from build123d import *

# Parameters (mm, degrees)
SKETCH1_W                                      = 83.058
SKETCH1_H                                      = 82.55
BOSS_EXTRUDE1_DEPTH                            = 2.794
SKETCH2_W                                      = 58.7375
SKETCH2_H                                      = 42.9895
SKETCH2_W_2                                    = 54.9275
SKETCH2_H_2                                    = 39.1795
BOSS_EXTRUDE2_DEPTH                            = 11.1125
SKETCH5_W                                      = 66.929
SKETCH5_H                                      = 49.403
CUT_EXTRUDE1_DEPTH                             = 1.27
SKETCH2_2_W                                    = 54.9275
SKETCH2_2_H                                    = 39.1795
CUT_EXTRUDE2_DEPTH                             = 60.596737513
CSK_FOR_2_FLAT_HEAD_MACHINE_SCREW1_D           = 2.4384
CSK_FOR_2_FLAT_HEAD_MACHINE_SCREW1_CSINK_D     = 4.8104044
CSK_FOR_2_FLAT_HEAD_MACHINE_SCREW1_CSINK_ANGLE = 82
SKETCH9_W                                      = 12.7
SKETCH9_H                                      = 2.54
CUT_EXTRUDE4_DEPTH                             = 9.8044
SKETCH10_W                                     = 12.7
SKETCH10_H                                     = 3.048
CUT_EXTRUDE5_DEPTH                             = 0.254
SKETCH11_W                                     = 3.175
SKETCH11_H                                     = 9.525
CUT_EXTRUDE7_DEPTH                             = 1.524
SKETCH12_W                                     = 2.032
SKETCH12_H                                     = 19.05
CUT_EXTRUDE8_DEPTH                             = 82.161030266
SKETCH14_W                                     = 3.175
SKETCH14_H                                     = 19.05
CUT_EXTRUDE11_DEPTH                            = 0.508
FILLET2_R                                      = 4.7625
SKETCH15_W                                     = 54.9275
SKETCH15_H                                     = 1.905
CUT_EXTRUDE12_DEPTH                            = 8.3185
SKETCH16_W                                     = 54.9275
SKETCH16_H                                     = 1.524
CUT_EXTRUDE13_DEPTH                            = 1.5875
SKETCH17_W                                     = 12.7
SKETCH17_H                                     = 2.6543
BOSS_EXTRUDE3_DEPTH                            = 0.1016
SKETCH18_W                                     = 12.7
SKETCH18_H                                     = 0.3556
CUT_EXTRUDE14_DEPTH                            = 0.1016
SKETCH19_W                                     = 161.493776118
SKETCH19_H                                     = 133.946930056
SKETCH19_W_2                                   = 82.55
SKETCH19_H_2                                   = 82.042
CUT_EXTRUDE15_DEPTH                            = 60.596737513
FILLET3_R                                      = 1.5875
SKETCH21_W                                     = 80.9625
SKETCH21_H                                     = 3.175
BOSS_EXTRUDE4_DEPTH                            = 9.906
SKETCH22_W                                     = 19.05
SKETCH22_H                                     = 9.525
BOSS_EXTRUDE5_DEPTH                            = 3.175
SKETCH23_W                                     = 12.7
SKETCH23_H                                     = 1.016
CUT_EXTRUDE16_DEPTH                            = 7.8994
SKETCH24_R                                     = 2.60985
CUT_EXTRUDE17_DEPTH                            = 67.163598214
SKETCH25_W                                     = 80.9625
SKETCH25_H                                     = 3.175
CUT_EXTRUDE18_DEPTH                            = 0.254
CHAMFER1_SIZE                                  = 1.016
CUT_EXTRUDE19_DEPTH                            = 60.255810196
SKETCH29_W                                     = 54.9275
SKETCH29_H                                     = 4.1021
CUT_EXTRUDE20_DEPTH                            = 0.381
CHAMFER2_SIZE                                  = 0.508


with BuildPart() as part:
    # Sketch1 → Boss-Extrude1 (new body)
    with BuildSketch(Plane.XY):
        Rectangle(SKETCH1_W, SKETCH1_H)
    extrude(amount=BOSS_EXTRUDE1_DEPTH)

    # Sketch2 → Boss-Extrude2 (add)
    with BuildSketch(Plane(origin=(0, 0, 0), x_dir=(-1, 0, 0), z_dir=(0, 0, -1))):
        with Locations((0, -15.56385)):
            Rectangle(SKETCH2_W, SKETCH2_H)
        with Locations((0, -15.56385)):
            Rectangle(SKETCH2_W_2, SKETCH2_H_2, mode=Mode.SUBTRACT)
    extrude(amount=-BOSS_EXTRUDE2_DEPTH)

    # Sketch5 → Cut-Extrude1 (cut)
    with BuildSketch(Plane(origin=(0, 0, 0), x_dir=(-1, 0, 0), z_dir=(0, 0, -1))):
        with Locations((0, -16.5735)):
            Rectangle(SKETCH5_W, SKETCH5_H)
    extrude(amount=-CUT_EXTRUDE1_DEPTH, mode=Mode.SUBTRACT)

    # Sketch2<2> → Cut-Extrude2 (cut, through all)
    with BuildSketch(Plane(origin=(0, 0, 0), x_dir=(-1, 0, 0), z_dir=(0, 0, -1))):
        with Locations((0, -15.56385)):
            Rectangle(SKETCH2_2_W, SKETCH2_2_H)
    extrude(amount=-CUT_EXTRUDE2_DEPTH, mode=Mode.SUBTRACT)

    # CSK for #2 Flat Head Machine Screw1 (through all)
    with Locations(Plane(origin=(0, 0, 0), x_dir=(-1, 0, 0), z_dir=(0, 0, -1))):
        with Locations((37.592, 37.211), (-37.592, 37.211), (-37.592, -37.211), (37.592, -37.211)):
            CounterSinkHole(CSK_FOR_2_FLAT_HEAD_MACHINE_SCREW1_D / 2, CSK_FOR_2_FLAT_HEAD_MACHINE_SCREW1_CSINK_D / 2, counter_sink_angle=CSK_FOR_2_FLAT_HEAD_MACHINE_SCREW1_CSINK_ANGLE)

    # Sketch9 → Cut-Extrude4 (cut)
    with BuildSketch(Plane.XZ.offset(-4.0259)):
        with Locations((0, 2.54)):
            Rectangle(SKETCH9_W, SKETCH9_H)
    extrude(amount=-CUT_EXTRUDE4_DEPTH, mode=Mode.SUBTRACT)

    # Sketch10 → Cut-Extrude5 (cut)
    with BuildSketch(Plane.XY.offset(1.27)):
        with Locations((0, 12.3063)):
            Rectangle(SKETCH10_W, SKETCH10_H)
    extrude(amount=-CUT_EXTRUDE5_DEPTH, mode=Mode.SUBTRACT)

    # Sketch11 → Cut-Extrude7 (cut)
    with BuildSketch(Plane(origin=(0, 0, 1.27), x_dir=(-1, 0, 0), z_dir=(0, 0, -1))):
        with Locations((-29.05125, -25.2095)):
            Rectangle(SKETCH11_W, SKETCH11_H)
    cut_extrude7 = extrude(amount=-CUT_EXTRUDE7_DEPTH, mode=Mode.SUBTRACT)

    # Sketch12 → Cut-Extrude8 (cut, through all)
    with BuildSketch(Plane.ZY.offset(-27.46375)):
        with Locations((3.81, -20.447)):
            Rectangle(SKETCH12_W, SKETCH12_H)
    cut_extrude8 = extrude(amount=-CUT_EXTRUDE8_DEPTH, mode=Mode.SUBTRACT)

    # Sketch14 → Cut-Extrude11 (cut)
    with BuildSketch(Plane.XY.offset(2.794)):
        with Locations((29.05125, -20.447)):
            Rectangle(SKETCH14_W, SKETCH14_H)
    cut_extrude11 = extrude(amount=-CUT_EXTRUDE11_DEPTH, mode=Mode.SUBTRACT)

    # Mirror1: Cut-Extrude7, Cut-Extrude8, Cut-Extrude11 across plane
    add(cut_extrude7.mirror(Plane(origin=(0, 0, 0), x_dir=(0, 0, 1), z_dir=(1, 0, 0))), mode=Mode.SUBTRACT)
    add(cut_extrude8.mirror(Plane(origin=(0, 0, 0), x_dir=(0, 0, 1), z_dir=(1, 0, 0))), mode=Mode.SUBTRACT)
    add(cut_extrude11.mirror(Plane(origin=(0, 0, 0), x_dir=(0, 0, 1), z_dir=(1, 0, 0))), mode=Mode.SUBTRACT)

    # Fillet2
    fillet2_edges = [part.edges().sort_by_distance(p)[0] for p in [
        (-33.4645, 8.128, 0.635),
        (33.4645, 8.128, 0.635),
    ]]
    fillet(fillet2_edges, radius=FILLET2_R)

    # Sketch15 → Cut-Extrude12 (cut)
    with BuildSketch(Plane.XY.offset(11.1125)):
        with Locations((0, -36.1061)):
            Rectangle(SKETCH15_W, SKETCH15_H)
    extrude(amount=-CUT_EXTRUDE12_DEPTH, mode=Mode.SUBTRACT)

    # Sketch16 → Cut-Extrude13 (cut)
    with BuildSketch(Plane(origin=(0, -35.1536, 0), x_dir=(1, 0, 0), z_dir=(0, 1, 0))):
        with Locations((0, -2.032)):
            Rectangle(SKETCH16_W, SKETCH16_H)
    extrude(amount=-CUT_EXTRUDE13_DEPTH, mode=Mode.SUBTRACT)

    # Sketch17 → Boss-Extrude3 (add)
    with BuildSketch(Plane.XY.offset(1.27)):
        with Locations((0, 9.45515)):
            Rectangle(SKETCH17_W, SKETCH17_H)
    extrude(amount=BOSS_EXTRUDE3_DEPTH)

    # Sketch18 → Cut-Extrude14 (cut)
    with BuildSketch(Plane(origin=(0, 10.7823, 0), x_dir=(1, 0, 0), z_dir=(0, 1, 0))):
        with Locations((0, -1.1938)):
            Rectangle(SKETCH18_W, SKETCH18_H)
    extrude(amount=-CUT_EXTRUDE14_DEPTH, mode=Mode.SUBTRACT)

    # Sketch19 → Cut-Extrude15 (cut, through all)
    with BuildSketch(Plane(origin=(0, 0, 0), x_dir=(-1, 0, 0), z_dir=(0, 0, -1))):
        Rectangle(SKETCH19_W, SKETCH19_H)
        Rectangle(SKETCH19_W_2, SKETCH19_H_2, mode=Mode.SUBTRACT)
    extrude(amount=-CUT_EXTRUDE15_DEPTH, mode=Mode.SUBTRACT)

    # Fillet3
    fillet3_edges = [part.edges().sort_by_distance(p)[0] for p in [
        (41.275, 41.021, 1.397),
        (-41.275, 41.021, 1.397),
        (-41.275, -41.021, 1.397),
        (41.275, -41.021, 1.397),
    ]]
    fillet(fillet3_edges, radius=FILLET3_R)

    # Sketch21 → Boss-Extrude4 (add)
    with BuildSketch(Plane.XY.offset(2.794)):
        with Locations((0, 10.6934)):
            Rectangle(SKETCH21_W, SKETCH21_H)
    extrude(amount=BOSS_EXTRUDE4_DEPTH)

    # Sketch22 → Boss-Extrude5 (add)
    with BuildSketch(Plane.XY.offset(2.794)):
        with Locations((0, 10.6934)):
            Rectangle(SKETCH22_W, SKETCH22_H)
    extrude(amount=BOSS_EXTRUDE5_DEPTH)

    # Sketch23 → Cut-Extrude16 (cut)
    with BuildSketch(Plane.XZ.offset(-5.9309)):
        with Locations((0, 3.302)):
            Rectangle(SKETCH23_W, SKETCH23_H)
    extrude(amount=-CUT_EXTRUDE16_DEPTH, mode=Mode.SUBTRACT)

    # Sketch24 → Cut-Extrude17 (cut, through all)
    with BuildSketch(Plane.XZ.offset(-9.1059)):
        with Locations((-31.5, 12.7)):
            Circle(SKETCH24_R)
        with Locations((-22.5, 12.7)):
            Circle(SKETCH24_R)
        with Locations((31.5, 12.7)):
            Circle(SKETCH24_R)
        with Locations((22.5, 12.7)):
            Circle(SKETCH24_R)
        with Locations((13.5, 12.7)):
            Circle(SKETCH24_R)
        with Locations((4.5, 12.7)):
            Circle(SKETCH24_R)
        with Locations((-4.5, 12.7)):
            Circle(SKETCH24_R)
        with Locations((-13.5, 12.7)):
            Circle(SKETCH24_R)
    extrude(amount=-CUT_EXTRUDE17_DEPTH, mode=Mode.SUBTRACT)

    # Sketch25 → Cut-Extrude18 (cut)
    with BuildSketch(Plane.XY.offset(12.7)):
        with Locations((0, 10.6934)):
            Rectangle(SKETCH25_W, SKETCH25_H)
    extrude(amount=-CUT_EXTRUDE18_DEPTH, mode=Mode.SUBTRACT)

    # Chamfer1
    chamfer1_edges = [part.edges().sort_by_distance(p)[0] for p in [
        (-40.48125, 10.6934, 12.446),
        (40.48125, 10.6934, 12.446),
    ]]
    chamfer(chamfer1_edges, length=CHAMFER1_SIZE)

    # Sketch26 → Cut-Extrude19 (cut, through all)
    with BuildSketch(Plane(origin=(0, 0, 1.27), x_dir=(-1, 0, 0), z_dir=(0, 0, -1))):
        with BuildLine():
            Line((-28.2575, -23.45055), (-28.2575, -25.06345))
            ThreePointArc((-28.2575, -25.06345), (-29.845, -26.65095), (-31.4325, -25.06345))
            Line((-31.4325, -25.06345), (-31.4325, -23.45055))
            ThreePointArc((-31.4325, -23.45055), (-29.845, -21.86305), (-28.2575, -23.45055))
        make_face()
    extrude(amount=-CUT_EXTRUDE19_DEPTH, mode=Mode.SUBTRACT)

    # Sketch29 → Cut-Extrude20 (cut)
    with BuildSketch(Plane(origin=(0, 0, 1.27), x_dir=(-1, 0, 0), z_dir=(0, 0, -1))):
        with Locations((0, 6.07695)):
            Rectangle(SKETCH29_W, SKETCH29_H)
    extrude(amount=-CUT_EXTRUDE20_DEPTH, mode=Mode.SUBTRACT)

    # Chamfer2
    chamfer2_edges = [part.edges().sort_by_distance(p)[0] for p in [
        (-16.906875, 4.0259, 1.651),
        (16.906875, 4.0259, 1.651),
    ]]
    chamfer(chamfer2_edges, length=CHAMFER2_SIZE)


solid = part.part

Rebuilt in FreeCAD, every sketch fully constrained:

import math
import FreeCAD as App
import Part
import Sketcher
Q = App.Units.Quantity


def edges_at(feature, points):
    """Names of the edges that pass closest to the given points."""
    edges = feature.Shape.Edges
    near = lambda p: min(range(len(edges)), key=lambda i: edges[i].distToShape(Part.Vertex(*p))[0])
    return sorted({f"Edge{near(p) + 1}" for p in points})

doc = App.newDocument("Part")
body = doc.addObject("PartDesign::Body", "Body")

# Sketch on XY plane
sketch1 = body.newObject("Sketcher::SketchObject", "Sketch")
sketch1.AttachmentSupport = (doc.getObject("XY_Plane"), [""])
sketch1.MapMode = "FlatFace"
sketch1.addGeometry([
    Part.LineSegment(App.Vector(-42, 41, 0), App.Vector(-42, -41, 0)),
    Part.LineSegment(App.Vector(-42, -41, 0), App.Vector(42, -41, 0)),
    Part.LineSegment(App.Vector(42, -41, 0), App.Vector(42, 41, 0)),
    Part.LineSegment(App.Vector(42, 41, 0), App.Vector(-42, 41, 0)),
], False)
sketch1.addConstraint([
    Sketcher.Constraint("Coincident", 0, 2, 1, 1),
    Sketcher.Constraint("Coincident", 1, 2, 2, 1),
    Sketcher.Constraint("Coincident", 2, 2, 3, 1),
    Sketcher.Constraint("Coincident", 3, 2, 0, 1),
    Sketcher.Constraint("Vertical", 0),
    Sketcher.Constraint("Horizontal", 1),
    Sketcher.Constraint("Vertical", 2),
    Sketcher.Constraint("Horizontal", 3),
    Sketcher.Constraint("Symmetric", 0, 2, 2, 2, -1, 1),
    Sketcher.Constraint("DistanceX", 1, 1, 1, 2, Q("3.27 in")),
    Sketcher.Constraint("DistanceY", 0, 2, 0, 1, Q("3.25 in")),
])
pad1 = body.newObject("PartDesign::Pad", "Pad")
pad1.Profile = sketch1
pad1.Length = Q("0.11 in")

# Sketch on XY plane
sketch2 = body.newObject("Sketcher::SketchObject", "Sketch001")
sketch2.AttachmentSupport = (doc.getObject("XY_Plane"), [""])
sketch2.MapMode = "FlatFace"
sketch2.addGeometry([
    Part.LineSegment(App.Vector(29, 6, 0), App.Vector(29, -37, 0)),  # 0
    Part.LineSegment(App.Vector(29, -37, 0), App.Vector(-29, -37, 0)),  # 1
    Part.LineSegment(App.Vector(-29, -37, 0), App.Vector(-29, 6, 0)),  # 2
    Part.LineSegment(App.Vector(-29, 6, 0), App.Vector(29, 6, 0)),  # 3
    Part.LineSegment(App.Vector(-27, -35, 0), App.Vector(27, -35, 0)),  # 4
    Part.LineSegment(App.Vector(27, -35, 0), App.Vector(27, 4, 0)),  # 5
    Part.LineSegment(App.Vector(27, 4, 0), App.Vector(-27, 4, 0)),  # 6
    Part.LineSegment(App.Vector(-27, 4, 0), App.Vector(-27, -35, 0)),  # 7
], False)
sketch2.addConstraint([
    Sketcher.Constraint("Coincident", 0, 2, 1, 1),
    Sketcher.Constraint("Coincident", 1, 2, 2, 1),
    Sketcher.Constraint("Coincident", 2, 2, 3, 1),
    Sketcher.Constraint("Coincident", 3, 2, 0, 1),
    Sketcher.Constraint("Coincident", 4, 2, 5, 1),
    Sketcher.Constraint("Coincident", 5, 2, 6, 1),
    Sketcher.Constraint("Coincident", 6, 2, 7, 1),
    Sketcher.Constraint("Coincident", 7, 2, 4, 1),
    Sketcher.Constraint("Vertical", 0),
    Sketcher.Constraint("Horizontal", 1),
    Sketcher.Constraint("Vertical", 2),
    Sketcher.Constraint("Horizontal", 3),
    Sketcher.Constraint("Horizontal", 4),
    Sketcher.Constraint("Vertical", 5),
    Sketcher.Constraint("Horizontal", 6),
    Sketcher.Constraint("Vertical", 7),
    Sketcher.Constraint("DistanceX", 1, 2, 1, 1, Q("2.3125 in")),
    Sketcher.Constraint("DistanceX", 4, 1, 4, 2, Q("2.1625 in")),
    Sketcher.Constraint("DistanceY", 0, 2, 0, 1, Q("1.6925 in")),
    Sketcher.Constraint("DistanceY", 5, 1, 5, 2, Q("1.5425 in")),
    Sketcher.Constraint("DistanceX", -1, 1, 0, 2, Q("1.15625 in")),
    Sketcher.Constraint("DistanceY", 0, 2, -1, 1, Q("1.459 in")),
    Sketcher.Constraint("DistanceY", 4, 2, -1, 1, Q("1.384 in")),
    Sketcher.Constraint("DistanceX", 4, 2, 0, 2, Q("0.075 in")),
])
pad2 = body.newObject("PartDesign::Pad", "Pad001")
pad2.Profile = sketch2
pad2.Length = Q("0.4375 in")

# Sketch on XY plane
sketch3 = body.newObject("Sketcher::SketchObject", "Sketch002")
sketch3.AttachmentSupport = (doc.getObject("XY_Plane"), [""])
sketch3.MapMode = "FlatFace"
sketch3.addGeometry([
    Part.LineSegment(App.Vector(33, 8, 0), App.Vector(33, -41, 0)),
    Part.LineSegment(App.Vector(33, -41, 0), App.Vector(-33, -41, 0)),
    Part.LineSegment(App.Vector(-33, -41, 0), App.Vector(-33, 8, 0)),
    Part.LineSegment(App.Vector(-33, 8, 0), App.Vector(33, 8, 0)),
], False)
sketch3.addConstraint([
    Sketcher.Constraint("Coincident", 0, 2, 1, 1),
    Sketcher.Constraint("Coincident", 1, 2, 2, 1),
    Sketcher.Constraint("Coincident", 2, 2, 3, 1),
    Sketcher.Constraint("Coincident", 3, 2, 0, 1),
    Sketcher.Constraint("Vertical", 0),
    Sketcher.Constraint("Horizontal", 1),
    Sketcher.Constraint("Vertical", 2),
    Sketcher.Constraint("Horizontal", 3),
    Sketcher.Constraint("DistanceX", 1, 2, 1, 1, Q("2.635 in")),
    Sketcher.Constraint("DistanceY", 0, 2, 0, 1, Q("1.945 in")),
    Sketcher.Constraint("DistanceY", -1, 1, 2, 2, Q("0.32 in")),
    Sketcher.Constraint("DistanceX", -1, 1, 0, 2, Q("1.3175 in")),
])
pocket1 = body.newObject("PartDesign::Pocket", "Pocket")
pocket1.Profile = sketch3
pocket1.Length = Q("0.05 in")
pocket1.Reversed = True

# Sketch on XY plane
sketch4 = body.newObject("Sketcher::SketchObject", "Sketch003")
sketch4.AttachmentSupport = (doc.getObject("XY_Plane"), [""])
sketch4.MapMode = "FlatFace"
sketch4.addGeometry([
    Part.LineSegment(App.Vector(27, 4, 0), App.Vector(27, -35, 0)),
    Part.LineSegment(App.Vector(27, -35, 0), App.Vector(-27, -35, 0)),
    Part.LineSegment(App.Vector(-27, -35, 0), App.Vector(-27, 4, 0)),
    Part.LineSegment(App.Vector(-27, 4, 0), App.Vector(27, 4, 0)),
], False)
sketch4.addConstraint([
    Sketcher.Constraint("Coincident", 0, 2, 1, 1),
    Sketcher.Constraint("Coincident", 1, 2, 2, 1),
    Sketcher.Constraint("Coincident", 2, 2, 3, 1),
    Sketcher.Constraint("Coincident", 3, 2, 0, 1),
    Sketcher.Constraint("Vertical", 0),
    Sketcher.Constraint("Horizontal", 1),
    Sketcher.Constraint("Vertical", 2),
    Sketcher.Constraint("Horizontal", 3),
    Sketcher.Constraint("DistanceX", 1, 2, 1, 1, Q("2.1625 in")),
    Sketcher.Constraint("DistanceY", 0, 2, 0, 1, Q("1.5425 in")),
    Sketcher.Constraint("DistanceY", 0, 2, -1, 1, Q("1.384 in")),
    Sketcher.Constraint("DistanceX", -1, 1, 0, 2, 27.46375),
])
pocket2 = body.newObject("PartDesign::Pocket", "Pocket001")
pocket2.Profile = sketch4
pocket2.Type = "ThroughAll"
pocket2.Reversed = True

# Sketch on XY plane
sketch5 = body.newObject("Sketcher::SketchObject", "Sketch004")
sketch5.AttachmentSupport = (doc.getObject("XY_Plane"), [""])
sketch5.MapMode = "FlatFace"
sketch5.addGeometry([
    Part.Circle(App.Vector(-37.6, 37.2, 0), App.Vector(0, 0, 1), 1.2),
    Part.Circle(App.Vector(37.6, 37.2, 0), App.Vector(0, 0, 1), 1.2),
    Part.Circle(App.Vector(37.6, -37.2, 0), App.Vector(0, 0, 1), 1.2),
    Part.Circle(App.Vector(-37.6, -37.2, 0), App.Vector(0, 0, 1), 1.2),
], False)
sketch5.addConstraint([
    Sketcher.Constraint("Equal", 0, 1),
    Sketcher.Constraint("Equal", 1, 2),
    Sketcher.Constraint("Equal", 2, 3),
    Sketcher.Constraint("Symmetric", 0, 3, 2, 3, -1, 1),
    Sketcher.Constraint("Symmetric", 1, 3, 3, 3, -1, 1),
    Sketcher.Constraint("Symmetric", 0, 3, 1, 3, -2),
    Sketcher.Constraint("Diameter", 0, Q("0.096 in")),
    Sketcher.Constraint("DistanceX", 0, 3, -1, 1, Q("1.48 in")),
    Sketcher.Constraint("DistanceY", 2, 3, 1, 3, Q("2.93 in")),
])
doc.recompute()
hole = body.newObject("PartDesign::Hole", "Hole")
hole.Profile = sketch5
hole.ThreadType = "None"
hole.Diameter = Q("0.096 in")
hole.DepthType = "ThroughAll"
hole.HoleCutType = "Countersink"
hole.HoleCutDiameter = 4.810404
hole.HoleCutCountersinkAngle = 82
hole.Reversed = True

# Sketch on XZ plane
sketch6 = body.newObject("Sketcher::SketchObject", "Sketch005")
sketch6.AttachmentSupport = (doc.getObject("XZ_Plane"), [""])
sketch6.MapMode = "FlatFace"
sketch6.AttachmentOffset = App.Placement(App.Vector(0, 0, -0.1585 * 25.4), App.Rotation())
sketch6.addGeometry([
    Part.LineSegment(App.Vector(-6.3, 3.8, 0), App.Vector(-6.3, 1.3, 0)),
    Part.LineSegment(App.Vector(-6.3, 1.3, 0), App.Vector(6.3, 1.3, 0)),
    Part.LineSegment(App.Vector(6.3, 1.3, 0), App.Vector(6.3, 3.8, 0)),
    Part.LineSegment(App.Vector(6.3, 3.8, 0), App.Vector(-6.3, 3.8, 0)),
], False)
sketch6.addConstraint([
    Sketcher.Constraint("Coincident", 0, 2, 1, 1),
    Sketcher.Constraint("Coincident", 1, 2, 2, 1),
    Sketcher.Constraint("Coincident", 2, 2, 3, 1),
    Sketcher.Constraint("Coincident", 3, 2, 0, 1),
    Sketcher.Constraint("Vertical", 0),
    Sketcher.Constraint("Horizontal", 1),
    Sketcher.Constraint("Vertical", 2),
    Sketcher.Constraint("Horizontal", 3),
    Sketcher.Constraint("DistanceX", 1, 1, 1, 2, Q("0.5 in")),
    Sketcher.Constraint("DistanceY", 0, 2, 0, 1, Q("0.1 in")),
    Sketcher.Constraint("DistanceX", 0, 2, -1, 1, Q("0.25 in")),
    Sketcher.Constraint("DistanceY", -1, 1, 0, 2, Q("0.05 in")),
])
pocket3 = body.newObject("PartDesign::Pocket", "Pocket002")
pocket3.Profile = sketch6
pocket3.Length = Q("0.386 in")

# Sketch on XY plane
sketch7 = body.newObject("Sketcher::SketchObject", "Sketch006")
sketch7.AttachmentSupport = (doc.getObject("XY_Plane"), [""])
sketch7.MapMode = "FlatFace"
sketch7.AttachmentOffset = App.Placement(App.Vector(0, 0, 0.05 * 25.4), App.Rotation())
sketch7.addGeometry([
    Part.LineSegment(App.Vector(-6.3, 13.8, 0), App.Vector(-6.3, 10.8, 0)),
    Part.LineSegment(App.Vector(-6.3, 10.8, 0), App.Vector(6.3, 10.8, 0)),
    Part.LineSegment(App.Vector(6.3, 10.8, 0), App.Vector(6.3, 13.8, 0)),
    Part.LineSegment(App.Vector(6.3, 13.8, 0), App.Vector(-6.3, 13.8, 0)),
], False)
sketch7.addConstraint([
    Sketcher.Constraint("Coincident", 0, 2, 1, 1),
    Sketcher.Constraint("Coincident", 1, 2, 2, 1),
    Sketcher.Constraint("Coincident", 2, 2, 3, 1),
    Sketcher.Constraint("Coincident", 3, 2, 0, 1),
    Sketcher.Constraint("Vertical", 0),
    Sketcher.Constraint("Horizontal", 1),
    Sketcher.Constraint("Vertical", 2),
    Sketcher.Constraint("Horizontal", 3),
    Sketcher.Constraint("DistanceX", 1, 1, 1, 2, Q("0.5 in")),
    Sketcher.Constraint("DistanceY", 0, 2, 0, 1, Q("0.12 in")),
    Sketcher.Constraint("DistanceX", 0, 2, -1, 1, Q("0.25 in")),
    Sketcher.Constraint("DistanceY", -1, 1, 0, 2, Q("0.4245 in")),
])
pocket4 = body.newObject("PartDesign::Pocket", "Pocket003")
pocket4.Profile = sketch7
pocket4.Length = Q("0.01 in")

# Sketch on XY plane
sketch8 = body.newObject("Sketcher::SketchObject", "Sketch007")
sketch8.AttachmentSupport = (doc.getObject("XY_Plane"), [""])
sketch8.MapMode = "FlatFace"
sketch8.AttachmentOffset = App.Placement(App.Vector(0, 0, 0.05 * 25.4), App.Rotation())
sketch8.addGeometry([
    Part.LineSegment(App.Vector(30.6, -20.4, 0), App.Vector(30.6, -30, 0)),
    Part.LineSegment(App.Vector(30.6, -30, 0), App.Vector(27.5, -30, 0)),
    Part.LineSegment(App.Vector(27.5, -30, 0), App.Vector(27.5, -20.4, 0)),
    Part.LineSegment(App.Vector(27.5, -20.4, 0), App.Vector(30.6, -20.4, 0)),
], False)
sketch8.addConstraint([
    Sketcher.Constraint("Coincident", 0, 2, 1, 1),
    Sketcher.Constraint("Coincident", 1, 2, 2, 1),
    Sketcher.Constraint("Coincident", 2, 2, 3, 1),
    Sketcher.Constraint("Coincident", 3, 2, 0, 1),
    Sketcher.Constraint("Vertical", 0),
    Sketcher.Constraint("Horizontal", 1),
    Sketcher.Constraint("Vertical", 2),
    Sketcher.Constraint("Horizontal", 3),
    Sketcher.Constraint("DistanceX", 1, 2, 1, 1, Q("0.125 in")),
    Sketcher.Constraint("DistanceY", 0, 2, 0, 1, Q("0.375 in")),
    Sketcher.Constraint("DistanceY", 0, 2, -1, 1, Q("1.18 in")),
    Sketcher.Constraint("DistanceX", -1, 1, 0, 2, 30.63875),
])
pocket5 = body.newObject("PartDesign::Pocket", "Pocket004")
pocket5.Profile = sketch8
pocket5.Length = Q("0.06 in")
pocket5.Reversed = True

# Sketch on YZ plane
sketch9 = body.newObject("Sketcher::SketchObject", "Sketch008")
sketch9.AttachmentSupport = (doc.getObject("YZ_Plane"), [""])
sketch9.MapMode = "FlatFace"
sketch9.AttachmentOffset = App.Placement(App.Vector(0, 0, 27.46375), App.Rotation())
sketch9.addGeometry([
    Part.LineSegment(App.Vector(-10.9, 2.8, 0), App.Vector(-30, 2.8, 0)),
    Part.LineSegment(App.Vector(-30, 2.8, 0), App.Vector(-30, 4.8, 0)),
    Part.LineSegment(App.Vector(-30, 4.8, 0), App.Vector(-10.9, 4.8, 0)),
    Part.LineSegment(App.Vector(-10.9, 4.8, 0), App.Vector(-10.9, 2.8, 0)),
], False)
sketch9.addConstraint([
    Sketcher.Constraint("Coincident", 0, 2, 1, 1),
    Sketcher.Constraint("Coincident", 1, 2, 2, 1),
    Sketcher.Constraint("Coincident", 2, 2, 3, 1),
    Sketcher.Constraint("Coincident", 3, 2, 0, 1),
    Sketcher.Constraint("Horizontal", 0),
    Sketcher.Constraint("Vertical", 1),
    Sketcher.Constraint("Horizontal", 2),
    Sketcher.Constraint("Vertical", 3),
    Sketcher.Constraint("DistanceX", 0, 2, 0, 1, Q("0.75 in")),
    Sketcher.Constraint("DistanceY", 1, 1, 1, 2, Q("0.08 in")),
    Sketcher.Constraint("DistanceX", 0, 2, -1, 1, Q("1.18 in")),
    Sketcher.Constraint("DistanceY", -1, 1, 0, 2, Q("0.11 in")),
])
pocket6 = body.newObject("PartDesign::Pocket", "Pocket005")
pocket6.Profile = sketch9
pocket6.Type = "ThroughAll"
pocket6.Reversed = True

# Sketch on XY plane
sketch10 = body.newObject("Sketcher::SketchObject", "Sketch009")
sketch10.AttachmentSupport = (doc.getObject("XY_Plane"), [""])
sketch10.MapMode = "FlatFace"
sketch10.AttachmentOffset = App.Placement(App.Vector(0, 0, 0.11 * 25.4), App.Rotation())
sketch10.addGeometry([
    Part.LineSegment(App.Vector(27.5, -10.9, 0), App.Vector(27.5, -30, 0)),
    Part.LineSegment(App.Vector(27.5, -30, 0), App.Vector(30.6, -30, 0)),
    Part.LineSegment(App.Vector(30.6, -30, 0), App.Vector(30.6, -10.9, 0)),
    Part.LineSegment(App.Vector(30.6, -10.9, 0), App.Vector(27.5, -10.9, 0)),
], False)
sketch10.addConstraint([
    Sketcher.Constraint("Coincident", 0, 2, 1, 1),
    Sketcher.Constraint("Coincident", 1, 2, 2, 1),
    Sketcher.Constraint("Coincident", 2, 2, 3, 1),
    Sketcher.Constraint("Coincident", 3, 2, 0, 1),
    Sketcher.Constraint("Vertical", 0),
    Sketcher.Constraint("Horizontal", 1),
    Sketcher.Constraint("Vertical", 2),
    Sketcher.Constraint("Horizontal", 3),
    Sketcher.Constraint("DistanceY", 0, 2, 0, 1, Q("0.75 in")),
    Sketcher.Constraint("DistanceX", 1, 1, 1, 2, Q("0.125 in")),
    Sketcher.Constraint("DistanceY", 0, 2, -1, 1, Q("1.18 in")),
    Sketcher.Constraint("DistanceX", -1, 1, 0, 2, 27.46375),
])
pocket7 = body.newObject("PartDesign::Pocket", "Pocket006")
pocket7.Profile = sketch10
pocket7.Length = Q("0.02 in")
doc.recompute()

mirrored = body.newObject("PartDesign::Mirrored", "Mirrored")
mirrored.Originals = [pocket5, pocket6, pocket7]
mirrored.MirrorPlane = (doc.getObject("YZ_Plane"), [""])
body.Tip = mirrored
doc.recompute()

fillet = body.newObject("PartDesign::Fillet", "Fillet")
fillet.Base = (mirrored, edges_at(mirrored, [(-33.465, 8.128, 0.635), (33.465, 8.128, 0.635)]))
fillet.Radius = Q("0.1875 in")

# Sketch on XY plane
sketch11 = body.newObject("Sketcher::SketchObject", "Sketch010")
sketch11.AttachmentSupport = (doc.getObject("XY_Plane"), [""])
sketch11.MapMode = "FlatFace"
sketch11.AttachmentOffset = App.Placement(App.Vector(0, 0, 0.4375 * 25.4), App.Rotation())
sketch11.addGeometry([
    Part.LineSegment(App.Vector(-27.5, -35.2, 0), App.Vector(-27.5, -37.1, 0)),
    Part.LineSegment(App.Vector(-27.5, -37.1, 0), App.Vector(27.5, -37.1, 0)),
    Part.LineSegment(App.Vector(27.5, -37.1, 0), App.Vector(27.5, -35.2, 0)),
    Part.LineSegment(App.Vector(27.5, -35.2, 0), App.Vector(-27.5, -35.2, 0)),
], False)
sketch11.addConstraint([
    Sketcher.Constraint("Coincident", 0, 2, 1, 1),
    Sketcher.Constraint("Coincident", 1, 2, 2, 1),
    Sketcher.Constraint("Coincident", 2, 2, 3, 1),
    Sketcher.Constraint("Coincident", 3, 2, 0, 1),
    Sketcher.Constraint("Vertical", 0),
    Sketcher.Constraint("Horizontal", 1),
    Sketcher.Constraint("Vertical", 2),
    Sketcher.Constraint("Horizontal", 3),
    Sketcher.Constraint("DistanceY", 0, 2, 0, 1, Q("0.075 in")),
    Sketcher.Constraint("DistanceX", 1, 1, 1, 2, Q("2.1625 in")),
    Sketcher.Constraint("DistanceY", 0, 2, -1, 1, Q("1.459 in")),
    Sketcher.Constraint("DistanceX", 0, 2, -1, 1, 27.46375),
])
pocket8 = body.newObject("PartDesign::Pocket", "Pocket007")
pocket8.Profile = sketch11
pocket8.Length = Q("0.3275 in")

# Sketch on XZ plane
sketch12 = body.newObject("Sketcher::SketchObject", "Sketch011")
sketch12.AttachmentSupport = (doc.getObject("XZ_Plane"), [""])
sketch12.MapMode = "FlatFace"
sketch12.AttachmentOffset = App.Placement(App.Vector(0, 0, 1.384 * 25.4), App.Rotation())
sketch12.addGeometry([
    Part.LineSegment(App.Vector(-27.5, 1.3, 0), App.Vector(-27.5, 2.8, 0)),
    Part.LineSegment(App.Vector(-27.5, 2.8, 0), App.Vector(27.5, 2.8, 0)),
    Part.LineSegment(App.Vector(27.5, 2.8, 0), App.Vector(27.5, 1.3, 0)),
    Part.LineSegment(App.Vector(27.5, 1.3, 0), App.Vector(-27.5, 1.3, 0)),
], False)
sketch12.addConstraint([
    Sketcher.Constraint("Coincident", 0, 2, 1, 1),
    Sketcher.Constraint("Coincident", 1, 2, 2, 1),
    Sketcher.Constraint("Coincident", 2, 2, 3, 1),
    Sketcher.Constraint("Coincident", 3, 2, 0, 1),
    Sketcher.Constraint("Vertical", 0),
    Sketcher.Constraint("Horizontal", 1),
    Sketcher.Constraint("Vertical", 2),
    Sketcher.Constraint("Horizontal", 3),
    Sketcher.Constraint("DistanceY", 0, 1, 0, 2, Q("0.06 in")),
    Sketcher.Constraint("DistanceY", -1, 1, 0, 2, Q("0.11 in")),
    Sketcher.Constraint("DistanceX", 1, 1, 1, 2, Q("2.1625 in")),
    Sketcher.Constraint("DistanceX", 0, 2, -1, 1, 27.46375),
])
pocket9 = body.newObject("PartDesign::Pocket", "Pocket008")
pocket9.Profile = sketch12
pocket9.Length = Q("0.0625 in")
pocket9.Reversed = True

# Sketch on XY plane
sketch13 = body.newObject("Sketcher::SketchObject", "Sketch012")
sketch13.AttachmentSupport = (doc.getObject("XY_Plane"), [""])
sketch13.MapMode = "FlatFace"
sketch13.AttachmentOffset = App.Placement(App.Vector(0, 0, 0.05 * 25.4), App.Rotation())
sketch13.addGeometry([
    Part.LineSegment(App.Vector(-6.3, 10.8, 0), App.Vector(-6.3, 8.1, 0)),
    Part.LineSegment(App.Vector(-6.3, 8.1, 0), App.Vector(6.3, 8.1, 0)),
    Part.LineSegment(App.Vector(6.3, 8.1, 0), App.Vector(6.3, 10.8, 0)),
    Part.LineSegment(App.Vector(6.3, 10.8, 0), App.Vector(-6.3, 10.8, 0)),
], False)
sketch13.addConstraint([
    Sketcher.Constraint("Coincident", 0, 2, 1, 1),
    Sketcher.Constraint("Coincident", 1, 2, 2, 1),
    Sketcher.Constraint("Coincident", 2, 2, 3, 1),
    Sketcher.Constraint("Coincident", 3, 2, 0, 1),
    Sketcher.Constraint("Vertical", 0),
    Sketcher.Constraint("Horizontal", 1),
    Sketcher.Constraint("Vertical", 2),
    Sketcher.Constraint("Horizontal", 3),
    Sketcher.Constraint("DistanceX", 1, 1, 1, 2, Q("0.5 in")),
    Sketcher.Constraint("DistanceX", 0, 2, -1, 1, Q("0.25 in")),
    Sketcher.Constraint("DistanceY", -1, 1, 0, 2, Q("0.32 in")),
    Sketcher.Constraint("DistanceY", 0, 2, 0, 1, Q("0.1045 in")),
])
pad3 = body.newObject("PartDesign::Pad", "Pad002")
pad3.Profile = sketch13
pad3.Length = Q("0.004 in")

# Sketch on XZ plane
sketch14 = body.newObject("Sketcher::SketchObject", "Sketch013")
sketch14.AttachmentSupport = (doc.getObject("XZ_Plane"), [""])
sketch14.MapMode = "FlatFace"
sketch14.AttachmentOffset = App.Placement(App.Vector(0, 0, -0.4245 * 25.4), App.Rotation())
sketch14.addGeometry([
    Part.LineSegment(App.Vector(-6.35, 1.02, 0), App.Vector(-6.35, 1.37, 0)),
    Part.LineSegment(App.Vector(-6.35, 1.37, 0), App.Vector(6.35, 1.37, 0)),
    Part.LineSegment(App.Vector(6.35, 1.37, 0), App.Vector(6.35, 1.02, 0)),
    Part.LineSegment(App.Vector(6.35, 1.02, 0), App.Vector(-6.35, 1.02, 0)),
], False)
sketch14.addConstraint([
    Sketcher.Constraint("Coincident", 0, 2, 1, 1),
    Sketcher.Constraint("Coincident", 1, 2, 2, 1),
    Sketcher.Constraint("Coincident", 2, 2, 3, 1),
    Sketcher.Constraint("Coincident", 3, 2, 0, 1),
    Sketcher.Constraint("Vertical", 0),
    Sketcher.Constraint("Horizontal", 1),
    Sketcher.Constraint("Vertical", 2),
    Sketcher.Constraint("Horizontal", 3),
    Sketcher.Constraint("DistanceX", 1, 1, 1, 2, Q("0.5 in")),
    Sketcher.Constraint("DistanceY", 0, 1, 0, 2, Q("0.014 in")),
    Sketcher.Constraint("DistanceX", 0, 2, -1, 1, Q("0.25 in")),
    Sketcher.Constraint("DistanceY", -1, 1, 2, 2, Q("0.04 in")),
])
pocket10 = body.newObject("PartDesign::Pocket", "Pocket009")
pocket10.Profile = sketch14
pocket10.Length = Q("0.004 in")
pocket10.Reversed = True

# Sketch on XY plane
sketch15 = body.newObject("Sketcher::SketchObject", "Sketch014")
sketch15.AttachmentSupport = (doc.getObject("XY_Plane"), [""])
sketch15.MapMode = "FlatFace"
sketch15.addGeometry([
    Part.LineSegment(App.Vector(81, 67, 0), App.Vector(81, -67, 0)),  # 0
    Part.LineSegment(App.Vector(81, -67, 0), App.Vector(-81, -67, 0)),  # 1
    Part.LineSegment(App.Vector(-81, -67, 0), App.Vector(-81, 67, 0)),  # 2
    Part.LineSegment(App.Vector(-81, 67, 0), App.Vector(81, 67, 0)),  # 3
    Part.LineSegment(App.Vector(-41, -41, 0), App.Vector(41, -41, 0)),  # 4
    Part.LineSegment(App.Vector(41, -41, 0), App.Vector(41, 41, 0)),  # 5
    Part.LineSegment(App.Vector(41, 41, 0), App.Vector(-41, 41, 0)),  # 6
    Part.LineSegment(App.Vector(-41, 41, 0), App.Vector(-41, -41, 0)),  # 7
], False)
sketch15.addConstraint([
    Sketcher.Constraint("Coincident", 0, 2, 1, 1),
    Sketcher.Constraint("Coincident", 1, 2, 2, 1),
    Sketcher.Constraint("Coincident", 2, 2, 3, 1),
    Sketcher.Constraint("Coincident", 3, 2, 0, 1),
    Sketcher.Constraint("Coincident", 4, 2, 5, 1),
    Sketcher.Constraint("Coincident", 5, 2, 6, 1),
    Sketcher.Constraint("Coincident", 6, 2, 7, 1),
    Sketcher.Constraint("Coincident", 7, 2, 4, 1),
    Sketcher.Constraint("Vertical", 0),
    Sketcher.Constraint("Horizontal", 1),
    Sketcher.Constraint("Vertical", 2),
    Sketcher.Constraint("Horizontal", 3),
    Sketcher.Constraint("Horizontal", 4),
    Sketcher.Constraint("Vertical", 5),
    Sketcher.Constraint("Horizontal", 6),
    Sketcher.Constraint("Vertical", 7),
    Sketcher.Constraint("Symmetric", 0, 2, 2, 2, -1, 1),
    Sketcher.Constraint("Symmetric", 4, 2, 6, 2, -1, 1),
    Sketcher.Constraint("DistanceX", 4, 1, 4, 2, Q("3.25 in")),
    Sketcher.Constraint("DistanceY", 5, 1, 5, 2, Q("3.23 in")),
    Sketcher.Constraint("DistanceY", 0, 2, 0, 1, 133.94693),
    Sketcher.Constraint("DistanceX", 1, 2, 1, 1, 161.493776),
])
pocket11 = body.newObject("PartDesign::Pocket", "Pocket010")
pocket11.Profile = sketch15
pocket11.Type = "ThroughAll"
pocket11.Reversed = True
doc.recompute()

fillet2 = body.newObject("PartDesign::Fillet", "Fillet001")
fillet2.Base = (pocket11, edges_at(pocket11, [
    (41.275, 41.021, 1.397),
    (-41.275, 41.021, 1.397),
    (-41.275, -41.021, 1.397),
    (41.275, -41.021, 1.397),
]))
fillet2.Radius = Q("0.0625 in")

# Sketch on XY plane
sketch16 = body.newObject("Sketcher::SketchObject", "Sketch015")
sketch16.AttachmentSupport = (doc.getObject("XY_Plane"), [""])
sketch16.MapMode = "FlatFace"
sketch16.AttachmentOffset = App.Placement(App.Vector(0, 0, 0.11 * 25.4), App.Rotation())
sketch16.addGeometry([
    Part.LineSegment(App.Vector(-40.5, 12.3, 0), App.Vector(-40.5, 9.1, 0)),
    Part.LineSegment(App.Vector(-40.5, 9.1, 0), App.Vector(40.5, 9.1, 0)),
    Part.LineSegment(App.Vector(40.5, 9.1, 0), App.Vector(40.5, 12.3, 0)),
    Part.LineSegment(App.Vector(40.5, 12.3, 0), App.Vector(-40.5, 12.3, 0)),
], False)
sketch16.addConstraint([
    Sketcher.Constraint("Coincident", 0, 2, 1, 1),
    Sketcher.Constraint("Coincident", 1, 2, 2, 1),
    Sketcher.Constraint("Coincident", 2, 2, 3, 1),
    Sketcher.Constraint("Coincident", 3, 2, 0, 1),
    Sketcher.Constraint("Vertical", 0),
    Sketcher.Constraint("Horizontal", 1),
    Sketcher.Constraint("Vertical", 2),
    Sketcher.Constraint("Horizontal", 3),
    Sketcher.Constraint("DistanceX", 1, 1, 1, 2, Q("3.1875 in")),
    Sketcher.Constraint("DistanceY", 0, 2, 0, 1, Q("0.125 in")),
    Sketcher.Constraint("DistanceX", 0, 2, -1, 1, Q("1.59375 in")),
    Sketcher.Constraint("DistanceY", -1, 1, 0, 2, Q("0.3585 in")),
])
pad4 = body.newObject("PartDesign::Pad", "Pad003")
pad4.Profile = sketch16
pad4.Length = Q("0.39 in")

# Sketch on XY plane
sketch17 = body.newObject("Sketcher::SketchObject", "Sketch016")
sketch17.AttachmentSupport = (doc.getObject("XY_Plane"), [""])
sketch17.MapMode = "FlatFace"
sketch17.AttachmentOffset = App.Placement(App.Vector(0, 0, 0.11 * 25.4), App.Rotation())
sketch17.addGeometry([
    Part.LineSegment(App.Vector(-10, 15, 0), App.Vector(-10, 6, 0)),
    Part.LineSegment(App.Vector(-10, 6, 0), App.Vector(10, 6, 0)),
    Part.LineSegment(App.Vector(10, 6, 0), App.Vector(10, 15, 0)),
    Part.LineSegment(App.Vector(10, 15, 0), App.Vector(-10, 15, 0)),
], False)
sketch17.addConstraint([
    Sketcher.Constraint("Coincident", 0, 2, 1, 1),
    Sketcher.Constraint("Coincident", 1, 2, 2, 1),
    Sketcher.Constraint("Coincident", 2, 2, 3, 1),
    Sketcher.Constraint("Coincident", 3, 2, 0, 1),
    Sketcher.Constraint("Vertical", 0),
    Sketcher.Constraint("Horizontal", 1),
    Sketcher.Constraint("Vertical", 2),
    Sketcher.Constraint("Horizontal", 3),
    Sketcher.Constraint("DistanceX", 1, 1, 1, 2, Q("0.75 in")),
    Sketcher.Constraint("DistanceY", 0, 2, 0, 1, Q("0.375 in")),
    Sketcher.Constraint("DistanceX", 0, 2, -1, 1, Q("0.375 in")),
    Sketcher.Constraint("DistanceY", -1, 1, 0, 2, Q("0.2335 in")),
])
pad5 = body.newObject("PartDesign::Pad", "Pad004")
pad5.Profile = sketch17
pad5.Length = Q("0.125 in")

# Sketch on XZ plane
sketch18 = body.newObject("Sketcher::SketchObject", "Sketch017")
sketch18.AttachmentSupport = (doc.getObject("XZ_Plane"), [""])
sketch18.MapMode = "FlatFace"
sketch18.AttachmentOffset = App.Placement(App.Vector(0, 0, -0.2335 * 25.4), App.Rotation())
sketch18.addGeometry([
    Part.LineSegment(App.Vector(-6.3, 3.8, 0), App.Vector(-6.3, 2.8, 0)),
    Part.LineSegment(App.Vector(-6.3, 2.8, 0), App.Vector(6.3, 2.8, 0)),
    Part.LineSegment(App.Vector(6.3, 2.8, 0), App.Vector(6.3, 3.8, 0)),
    Part.LineSegment(App.Vector(6.3, 3.8, 0), App.Vector(-6.3, 3.8, 0)),
], False)
sketch18.addConstraint([
    Sketcher.Constraint("Coincident", 0, 2, 1, 1),
    Sketcher.Constraint("Coincident", 1, 2, 2, 1),
    Sketcher.Constraint("Coincident", 2, 2, 3, 1),
    Sketcher.Constraint("Coincident", 3, 2, 0, 1),
    Sketcher.Constraint("Vertical", 0),
    Sketcher.Constraint("Horizontal", 1),
    Sketcher.Constraint("Vertical", 2),
    Sketcher.Constraint("Horizontal", 3),
    Sketcher.Constraint("DistanceX", 1, 1, 1, 2, Q("0.5 in")),
    Sketcher.Constraint("DistanceY", 0, 2, 0, 1, Q("0.04 in")),
    Sketcher.Constraint("DistanceX", 0, 2, -1, 1, Q("0.25 in")),
    Sketcher.Constraint("DistanceY", -1, 1, 0, 2, Q("0.11 in")),
])
pocket12 = body.newObject("PartDesign::Pocket", "Pocket011")
pocket12.Profile = sketch18
pocket12.Length = Q("0.311 in")

# Sketch on XZ plane
sketch19 = body.newObject("Sketcher::SketchObject", "Sketch018")
sketch19.AttachmentSupport = (doc.getObject("XZ_Plane"), [""])
sketch19.MapMode = "FlatFace"
sketch19.AttachmentOffset = App.Placement(App.Vector(0, 0, -0.3585 * 25.4), App.Rotation())
sketch19.addGeometry([
    Part.Circle(App.Vector(-31.5, 12.7, 0), App.Vector(0, 0, 1), 2.6),  # 0
    Part.Circle(App.Vector(-22.5, 12.7, 0), App.Vector(0, 0, 1), 2.6),  # 1
    Part.Circle(App.Vector(31.5, 12.7, 0), App.Vector(0, 0, 1), 2.6),  # 2
    Part.Circle(App.Vector(22.5, 12.7, 0), App.Vector(0, 0, 1), 2.6),  # 3
    Part.Circle(App.Vector(13.5, 12.7, 0), App.Vector(0, 0, 1), 2.6),  # 4
    Part.Circle(App.Vector(4.5, 12.7, 0), App.Vector(0, 0, 1), 2.6),  # 5
    Part.Circle(App.Vector(-4.5, 12.7, 0), App.Vector(0, 0, 1), 2.6),  # 6
    Part.Circle(App.Vector(-13.5, 12.7, 0), App.Vector(0, 0, 1), 2.6),  # 7
], False)
sketch19.addConstraint([
    Sketcher.Constraint("Equal", 0, 1),
    Sketcher.Constraint("Equal", 1, 2),
    Sketcher.Constraint("Equal", 2, 3),
    Sketcher.Constraint("Equal", 3, 4),
    Sketcher.Constraint("Equal", 4, 5),
    Sketcher.Constraint("Equal", 5, 6),
    Sketcher.Constraint("Equal", 6, 7),
    Sketcher.Constraint("Symmetric", 0, 3, 2, 3, -2),
    Sketcher.Constraint("Symmetric", 1, 3, 3, 3, -2),
    Sketcher.Constraint("Symmetric", 5, 3, 6, 3, -2),
    Sketcher.Constraint("Symmetric", 4, 3, 7, 3, -2),
    Sketcher.Constraint("Horizontal", 0, 3, 1, 3),
    Sketcher.Constraint("Horizontal", 3, 3, 4, 3),
    Sketcher.Constraint("Horizontal", 4, 3, 5, 3),
    Sketcher.Constraint("Diameter", 0, Q("0.2055 in")),
    Sketcher.Constraint("DistanceY", -1, 1, 0, 3, Q("0.5 in")),
    Sketcher.Constraint("DistanceX", 0, 3, -1, 1, 31.5),
    Sketcher.Constraint("DistanceX", 1, 3, -1, 1, 22.5),
    Sketcher.Constraint("DistanceX", -1, 1, 4, 3, 13.5),
    Sketcher.Constraint("DistanceX", -1, 1, 5, 3, 4.5),
])
pocket13 = body.newObject("PartDesign::Pocket", "Pocket012")
pocket13.Profile = sketch19
pocket13.Type = "ThroughAll"

# Sketch on XY plane
sketch20 = body.newObject("Sketcher::SketchObject", "Sketch019")
sketch20.AttachmentSupport = (doc.getObject("XY_Plane"), [""])
sketch20.MapMode = "FlatFace"
sketch20.AttachmentOffset = App.Placement(App.Vector(0, 0, 0.5 * 25.4), App.Rotation())
sketch20.addGeometry([
    Part.LineSegment(App.Vector(-40.5, 12.3, 0), App.Vector(-40.5, 9.1, 0)),
    Part.LineSegment(App.Vector(-40.5, 9.1, 0), App.Vector(40.5, 9.1, 0)),
    Part.LineSegment(App.Vector(40.5, 9.1, 0), App.Vector(40.5, 12.3, 0)),
    Part.LineSegment(App.Vector(40.5, 12.3, 0), App.Vector(-40.5, 12.3, 0)),
], False)
sketch20.addConstraint([
    Sketcher.Constraint("Coincident", 0, 2, 1, 1),
    Sketcher.Constraint("Coincident", 1, 2, 2, 1),
    Sketcher.Constraint("Coincident", 2, 2, 3, 1),
    Sketcher.Constraint("Coincident", 3, 2, 0, 1),
    Sketcher.Constraint("Vertical", 0),
    Sketcher.Constraint("Horizontal", 1),
    Sketcher.Constraint("Vertical", 2),
    Sketcher.Constraint("Horizontal", 3),
    Sketcher.Constraint("DistanceX", 1, 1, 1, 2, Q("3.1875 in")),
    Sketcher.Constraint("DistanceY", 0, 2, 0, 1, Q("0.125 in")),
    Sketcher.Constraint("DistanceX", 0, 2, -1, 1, Q("1.59375 in")),
    Sketcher.Constraint("DistanceY", -1, 1, 0, 2, Q("0.3585 in")),
])
pocket14 = body.newObject("PartDesign::Pocket", "Pocket013")
pocket14.Profile = sketch20
pocket14.Length = Q("0.01 in")
doc.recompute()

chamfer = body.newObject("PartDesign::Chamfer", "Chamfer")
chamfer.Base = (pocket14, edges_at(pocket14, [(-40.481, 10.693, 12.446), (40.481, 10.693, 12.446)]))
chamfer.Size = Q("0.04 in")

# Sketch on XY plane
sketch21 = body.newObject("Sketcher::SketchObject", "Sketch020")
sketch21.AttachmentSupport = (doc.getObject("XY_Plane"), [""])
sketch21.MapMode = "FlatFace"
sketch21.AttachmentOffset = App.Placement(App.Vector(0, 0, 0.05 * 25.4), App.Rotation())
sketch21.addGeometry([
    Part.LineSegment(App.Vector(28.3, -25.1, 0), App.Vector(28.3, -23.5, 0)),
    Part.ArcOfCircle(Part.Circle(App.Vector(29.8, -23.5, 0), App.Vector(0, 0, 1), 1.6), math.radians(0), math.radians(180)),
    Part.LineSegment(App.Vector(31.4, -23.5, 0), App.Vector(31.4, -25.1, 0)),
    Part.ArcOfCircle(Part.Circle(App.Vector(29.8, -25.1, 0), App.Vector(0, 0, 1), 1.6), math.radians(180), math.radians(360)),
], False)
sketch21.addConstraint([
    Sketcher.Constraint("Tangent", 0, 2, 1, 2),
    Sketcher.Constraint("Tangent", 1, 1, 2, 1),
    Sketcher.Constraint("Tangent", 2, 2, 3, 2),
    Sketcher.Constraint("Tangent", 3, 1, 0, 1),
    Sketcher.Constraint("Vertical", 0),
    Sketcher.Constraint("Vertical", 2),
    Sketcher.Constraint("Radius", 1, Q("0.0625 in")),
    Sketcher.Constraint("DistanceY", 0, 1, 0, 2, Q("0.0635 in")),
    Sketcher.Constraint("DistanceX", -1, 1, 1, 3, Q("1.175 in")),
    Sketcher.Constraint("DistanceY", 1, 3, -1, 1, 23.45055),
])
pocket15 = body.newObject("PartDesign::Pocket", "Pocket014")
pocket15.Profile = sketch21
pocket15.Type = "ThroughAll"
pocket15.Reversed = True

# Sketch on XY plane
sketch22 = body.newObject("Sketcher::SketchObject", "Sketch021")
sketch22.AttachmentSupport = (doc.getObject("XY_Plane"), [""])
sketch22.MapMode = "FlatFace"
sketch22.AttachmentOffset = App.Placement(App.Vector(0, 0, 0.05 * 25.4), App.Rotation())
sketch22.addGeometry([
    Part.LineSegment(App.Vector(27.5, 8.1, 0), App.Vector(27.5, 4, 0)),
    Part.LineSegment(App.Vector(27.5, 4, 0), App.Vector(-27.5, 4, 0)),
    Part.LineSegment(App.Vector(-27.5, 4, 0), App.Vector(-27.5, 8.1, 0)),
    Part.LineSegment(App.Vector(-27.5, 8.1, 0), App.Vector(27.5, 8.1, 0)),
], False)
sketch22.addConstraint([
    Sketcher.Constraint("Coincident", 0, 2, 1, 1),
    Sketcher.Constraint("Coincident", 1, 2, 2, 1),
    Sketcher.Constraint("Coincident", 2, 2, 3, 1),
    Sketcher.Constraint("Coincident", 3, 2, 0, 1),
    Sketcher.Constraint("Vertical", 0),
    Sketcher.Constraint("Horizontal", 1),
    Sketcher.Constraint("Vertical", 2),
    Sketcher.Constraint("Horizontal", 3),
    Sketcher.Constraint("DistanceY", -1, 1, 2, 2, Q("0.32 in")),
    Sketcher.Constraint("DistanceX", 1, 2, 1, 1, Q("2.1625 in")),
    Sketcher.Constraint("DistanceY", 0, 2, 0, 1, Q("0.1615 in")),
    Sketcher.Constraint("DistanceX", -1, 1, 0, 2, 27.46375),
])
pocket16 = body.newObject("PartDesign::Pocket", "Pocket015")
pocket16.Profile = sketch22
pocket16.Length = Q("0.015 in")
pocket16.Reversed = True
doc.recompute()

chamfer2 = body.newObject("PartDesign::Chamfer", "Chamfer001")
chamfer2.Base = (pocket16, edges_at(pocket16, [(-16.907, 4.026, 1.651), (16.907, 4.026, 1.651)]))
chamfer2.Size = Q("0.02 in")

doc.recompute()
